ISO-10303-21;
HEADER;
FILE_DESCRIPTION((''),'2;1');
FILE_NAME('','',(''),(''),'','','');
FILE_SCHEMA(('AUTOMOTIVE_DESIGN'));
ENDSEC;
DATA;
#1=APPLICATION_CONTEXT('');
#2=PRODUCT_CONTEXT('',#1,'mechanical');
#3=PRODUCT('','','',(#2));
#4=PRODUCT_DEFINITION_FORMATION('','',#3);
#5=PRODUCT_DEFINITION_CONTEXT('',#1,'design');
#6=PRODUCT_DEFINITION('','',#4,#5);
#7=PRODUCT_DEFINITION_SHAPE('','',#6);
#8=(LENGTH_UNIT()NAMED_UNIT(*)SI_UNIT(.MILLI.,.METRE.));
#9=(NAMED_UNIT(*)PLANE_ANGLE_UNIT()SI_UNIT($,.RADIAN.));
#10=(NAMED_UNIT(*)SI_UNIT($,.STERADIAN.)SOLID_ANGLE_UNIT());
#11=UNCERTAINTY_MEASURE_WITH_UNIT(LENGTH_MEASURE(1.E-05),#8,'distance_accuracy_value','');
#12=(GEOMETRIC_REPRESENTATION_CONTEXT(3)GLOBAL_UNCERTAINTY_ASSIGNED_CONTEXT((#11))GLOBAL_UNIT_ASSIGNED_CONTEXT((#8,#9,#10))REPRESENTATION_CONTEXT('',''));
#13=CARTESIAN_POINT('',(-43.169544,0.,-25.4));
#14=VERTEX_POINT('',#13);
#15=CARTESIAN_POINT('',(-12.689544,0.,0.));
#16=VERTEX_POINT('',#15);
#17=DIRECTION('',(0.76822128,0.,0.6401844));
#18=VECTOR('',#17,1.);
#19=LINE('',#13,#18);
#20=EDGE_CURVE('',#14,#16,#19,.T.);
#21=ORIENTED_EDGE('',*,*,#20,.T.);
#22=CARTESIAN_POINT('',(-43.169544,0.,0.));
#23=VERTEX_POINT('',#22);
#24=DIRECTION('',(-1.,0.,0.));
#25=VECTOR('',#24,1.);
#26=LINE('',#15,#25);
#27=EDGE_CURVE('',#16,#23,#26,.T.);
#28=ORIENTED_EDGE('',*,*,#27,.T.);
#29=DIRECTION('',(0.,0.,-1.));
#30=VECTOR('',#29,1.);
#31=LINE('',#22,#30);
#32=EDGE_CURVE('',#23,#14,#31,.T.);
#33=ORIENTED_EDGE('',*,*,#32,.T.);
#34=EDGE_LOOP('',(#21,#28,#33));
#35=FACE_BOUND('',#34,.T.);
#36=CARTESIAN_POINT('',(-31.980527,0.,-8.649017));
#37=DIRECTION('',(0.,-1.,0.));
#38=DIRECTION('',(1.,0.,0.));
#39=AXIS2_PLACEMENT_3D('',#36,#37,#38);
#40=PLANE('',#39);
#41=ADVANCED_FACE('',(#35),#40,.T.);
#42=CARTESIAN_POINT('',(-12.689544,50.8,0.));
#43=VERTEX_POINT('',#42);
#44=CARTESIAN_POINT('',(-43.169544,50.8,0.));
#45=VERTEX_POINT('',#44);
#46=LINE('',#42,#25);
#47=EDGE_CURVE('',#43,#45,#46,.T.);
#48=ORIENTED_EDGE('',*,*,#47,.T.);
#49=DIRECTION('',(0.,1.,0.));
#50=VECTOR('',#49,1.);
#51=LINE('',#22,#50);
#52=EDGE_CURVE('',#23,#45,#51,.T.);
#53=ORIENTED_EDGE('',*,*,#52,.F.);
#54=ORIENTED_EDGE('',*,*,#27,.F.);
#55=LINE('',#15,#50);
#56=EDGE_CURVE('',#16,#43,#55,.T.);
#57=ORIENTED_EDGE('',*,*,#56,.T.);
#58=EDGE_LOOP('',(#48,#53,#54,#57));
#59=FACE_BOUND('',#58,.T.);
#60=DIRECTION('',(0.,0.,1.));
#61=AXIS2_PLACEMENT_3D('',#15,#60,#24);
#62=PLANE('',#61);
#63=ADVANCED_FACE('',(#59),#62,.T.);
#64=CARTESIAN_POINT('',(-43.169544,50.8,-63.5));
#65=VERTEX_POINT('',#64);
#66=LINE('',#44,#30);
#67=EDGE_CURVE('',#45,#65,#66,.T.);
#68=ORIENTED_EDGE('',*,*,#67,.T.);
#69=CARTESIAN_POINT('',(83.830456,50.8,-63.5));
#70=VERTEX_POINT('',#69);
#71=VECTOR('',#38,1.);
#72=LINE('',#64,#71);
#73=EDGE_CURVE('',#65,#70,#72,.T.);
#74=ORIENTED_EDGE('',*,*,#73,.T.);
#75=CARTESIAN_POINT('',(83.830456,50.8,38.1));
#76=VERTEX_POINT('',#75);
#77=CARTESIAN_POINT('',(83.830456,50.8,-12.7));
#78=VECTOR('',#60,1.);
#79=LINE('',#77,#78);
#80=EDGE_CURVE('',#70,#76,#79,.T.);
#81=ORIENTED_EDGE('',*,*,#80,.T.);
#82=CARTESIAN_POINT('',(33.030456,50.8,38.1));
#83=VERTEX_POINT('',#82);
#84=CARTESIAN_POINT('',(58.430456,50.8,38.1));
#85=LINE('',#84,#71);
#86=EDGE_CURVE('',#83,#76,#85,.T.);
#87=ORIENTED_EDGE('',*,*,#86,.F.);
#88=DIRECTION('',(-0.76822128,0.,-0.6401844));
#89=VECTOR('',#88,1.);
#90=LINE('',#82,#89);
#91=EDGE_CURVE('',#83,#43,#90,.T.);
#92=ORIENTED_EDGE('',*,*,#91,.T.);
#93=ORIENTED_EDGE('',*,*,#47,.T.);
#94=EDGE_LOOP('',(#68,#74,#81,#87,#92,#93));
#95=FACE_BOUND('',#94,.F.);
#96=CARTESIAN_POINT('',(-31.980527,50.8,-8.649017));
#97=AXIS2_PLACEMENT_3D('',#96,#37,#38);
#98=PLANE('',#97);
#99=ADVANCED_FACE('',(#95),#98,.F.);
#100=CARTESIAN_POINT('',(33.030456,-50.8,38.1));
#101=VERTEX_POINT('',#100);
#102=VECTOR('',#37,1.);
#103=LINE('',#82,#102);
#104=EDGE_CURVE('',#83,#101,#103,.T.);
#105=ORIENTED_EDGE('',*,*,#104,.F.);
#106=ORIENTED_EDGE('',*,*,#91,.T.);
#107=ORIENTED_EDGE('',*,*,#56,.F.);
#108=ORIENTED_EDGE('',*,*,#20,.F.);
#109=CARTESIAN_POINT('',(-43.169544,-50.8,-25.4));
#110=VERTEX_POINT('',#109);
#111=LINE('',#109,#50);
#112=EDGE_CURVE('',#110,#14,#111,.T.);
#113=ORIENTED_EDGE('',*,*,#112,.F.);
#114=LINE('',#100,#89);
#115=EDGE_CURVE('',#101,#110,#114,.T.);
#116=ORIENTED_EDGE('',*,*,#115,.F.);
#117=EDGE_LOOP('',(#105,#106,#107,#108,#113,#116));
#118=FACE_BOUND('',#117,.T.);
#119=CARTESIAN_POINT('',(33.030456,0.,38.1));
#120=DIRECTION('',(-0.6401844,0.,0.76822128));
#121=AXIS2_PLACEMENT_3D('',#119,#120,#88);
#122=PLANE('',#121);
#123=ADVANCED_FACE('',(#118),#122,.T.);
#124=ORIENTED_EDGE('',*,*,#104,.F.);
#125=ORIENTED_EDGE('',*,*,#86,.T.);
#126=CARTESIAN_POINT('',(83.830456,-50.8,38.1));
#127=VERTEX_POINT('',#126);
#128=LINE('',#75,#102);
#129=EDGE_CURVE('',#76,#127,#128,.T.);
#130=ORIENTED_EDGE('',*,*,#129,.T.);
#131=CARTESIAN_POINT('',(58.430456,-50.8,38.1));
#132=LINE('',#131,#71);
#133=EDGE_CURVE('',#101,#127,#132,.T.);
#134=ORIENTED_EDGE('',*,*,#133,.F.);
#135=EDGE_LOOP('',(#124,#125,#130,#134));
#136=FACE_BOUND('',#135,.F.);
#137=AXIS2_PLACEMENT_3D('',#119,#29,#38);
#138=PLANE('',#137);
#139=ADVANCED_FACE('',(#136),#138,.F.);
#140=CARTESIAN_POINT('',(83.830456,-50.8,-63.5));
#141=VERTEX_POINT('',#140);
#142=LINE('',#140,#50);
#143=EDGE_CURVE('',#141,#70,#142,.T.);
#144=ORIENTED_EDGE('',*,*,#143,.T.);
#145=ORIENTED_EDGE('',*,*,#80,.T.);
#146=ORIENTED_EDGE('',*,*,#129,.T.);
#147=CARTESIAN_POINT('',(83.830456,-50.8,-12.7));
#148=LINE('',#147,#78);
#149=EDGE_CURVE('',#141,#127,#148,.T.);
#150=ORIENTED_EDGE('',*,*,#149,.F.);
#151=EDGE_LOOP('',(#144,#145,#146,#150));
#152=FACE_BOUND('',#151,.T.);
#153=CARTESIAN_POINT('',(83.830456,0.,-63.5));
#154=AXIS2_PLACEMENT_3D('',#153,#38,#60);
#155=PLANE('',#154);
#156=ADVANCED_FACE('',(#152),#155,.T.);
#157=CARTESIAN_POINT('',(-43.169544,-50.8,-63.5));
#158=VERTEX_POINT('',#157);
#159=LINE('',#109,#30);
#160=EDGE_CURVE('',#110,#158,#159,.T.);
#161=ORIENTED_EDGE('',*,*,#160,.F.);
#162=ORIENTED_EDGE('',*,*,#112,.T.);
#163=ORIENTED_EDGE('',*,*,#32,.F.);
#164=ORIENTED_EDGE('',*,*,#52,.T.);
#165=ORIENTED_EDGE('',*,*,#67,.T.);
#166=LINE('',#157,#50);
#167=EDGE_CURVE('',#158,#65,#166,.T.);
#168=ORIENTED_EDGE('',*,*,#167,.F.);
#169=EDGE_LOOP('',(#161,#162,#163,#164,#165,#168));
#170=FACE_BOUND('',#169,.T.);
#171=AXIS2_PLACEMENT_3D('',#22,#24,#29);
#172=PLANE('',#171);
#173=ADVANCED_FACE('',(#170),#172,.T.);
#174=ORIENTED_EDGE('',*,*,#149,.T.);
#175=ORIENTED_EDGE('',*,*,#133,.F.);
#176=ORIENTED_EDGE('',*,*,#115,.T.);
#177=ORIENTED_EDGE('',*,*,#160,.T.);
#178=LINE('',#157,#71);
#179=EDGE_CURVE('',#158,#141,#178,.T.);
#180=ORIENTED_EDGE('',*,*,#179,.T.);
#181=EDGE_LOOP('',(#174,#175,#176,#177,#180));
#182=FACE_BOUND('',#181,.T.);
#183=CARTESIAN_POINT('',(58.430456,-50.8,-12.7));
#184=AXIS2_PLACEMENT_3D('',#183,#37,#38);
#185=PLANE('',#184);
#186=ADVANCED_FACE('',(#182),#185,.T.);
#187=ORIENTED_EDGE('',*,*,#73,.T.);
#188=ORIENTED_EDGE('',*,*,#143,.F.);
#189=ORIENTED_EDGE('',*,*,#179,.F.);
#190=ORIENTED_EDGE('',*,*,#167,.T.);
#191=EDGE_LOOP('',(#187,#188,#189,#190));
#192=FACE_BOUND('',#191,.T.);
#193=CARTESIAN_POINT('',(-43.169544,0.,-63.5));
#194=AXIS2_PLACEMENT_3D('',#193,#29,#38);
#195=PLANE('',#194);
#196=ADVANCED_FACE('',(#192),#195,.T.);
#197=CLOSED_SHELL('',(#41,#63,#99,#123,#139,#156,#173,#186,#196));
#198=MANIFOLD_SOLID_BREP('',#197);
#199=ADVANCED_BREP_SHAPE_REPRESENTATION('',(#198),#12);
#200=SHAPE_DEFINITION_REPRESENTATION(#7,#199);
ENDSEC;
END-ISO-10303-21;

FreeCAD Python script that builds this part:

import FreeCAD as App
import Part
import Sketcher

V = App.Vector
Q = App.Units.Quantity

doc = App.newDocument("Part")
body = doc.addObject("PartDesign::Body", "Body")

# Sketch on XZ plane
sketch1 = doc.addObject("Sketcher::SketchObject", "Sketch")
body.addObject(sketch1)
sketch1.AttachmentSupport = (doc.XZ_Plane, [""])
sketch1.MapMode = "FlatFace"
sketch1.addGeometry(Part.LineSegment(V(84, -64, 0), V(84, 38, 0)), False)
sketch1.addGeometry(Part.LineSegment(V(84, 38, 0), V(33, 38, 0)), False)
sketch1.addGeometry(Part.LineSegment(V(33, 38, 0), V(-43, -25, 0)), False)
sketch1.addGeometry(Part.LineSegment(V(-43, -25, 0), V(-43, -64, 0)), False)
sketch1.addGeometry(Part.LineSegment(V(-43, -64, 0), V(84, -64, 0)), False)
sketch1.addConstraint(Sketcher.Constraint("Coincident", 0, 2, 1, 1))
sketch1.addConstraint(Sketcher.Constraint("Coincident", 1, 2, 2, 1))
sketch1.addConstraint(Sketcher.Constraint("Coincident", 2, 2, 3, 1))
sketch1.addConstraint(Sketcher.Constraint("Coincident", 3, 2, 4, 1))
sketch1.addConstraint(Sketcher.Constraint("Coincident", 4, 2, 0, 1))
sketch1.addConstraint(Sketcher.Constraint("Vertical", 0))
sketch1.addConstraint(Sketcher.Constraint("Horizontal", 1))
sketch1.addConstraint(Sketcher.Constraint("Vertical", 3))
sketch1.addConstraint(Sketcher.Constraint("Horizontal", 4))
sketch1.addConstraint(Sketcher.Constraint("DistanceX", 1, 2, 1, 1, Q("2 in")))
sketch1.addConstraint(Sketcher.Constraint("DistanceX", 4, 1, 4, 2, Q("5 in")))
sketch1.addConstraint(Sketcher.Constraint("DistanceY", 0, 1, 0, 2, Q("4 in")))
sketch1.addConstraint(Sketcher.Constraint("DistanceY", 3, 2, 3, 1, Q("1.5 in")))
sketch1.addConstraint(Sketcher.Constraint("DistanceY", 2, 2, -1, 1, Q("1 in")))
sketch1.addConstraint(Sketcher.Constraint("DistanceX", -1, 1, 0, 2, Q("83.830456 mm")))
pad1 = doc.addObject("PartDesign::Pad", "Pad")
body.addObject(pad1)
pad1.Profile = sketch1
pad1.Length = Q("4 in")
pad1.Midplane = True

# Sketch on XZ plane
sketch2 = doc.addObject("Sketcher::SketchObject", "Sketch001")
body.addObject(sketch2)
sketch2.AttachmentSupport = (doc.XZ_Plane, [""])
sketch2.MapMode = "FlatFace"
sketch2.addGeometry(Part.LineSegment(V(-43, -25, 0), V(-13, 0, 0)), False)
sketch2.addGeometry(Part.LineSegment(V(-13, 0, 0), V(-43, 0, 0)), False)
sketch2.addGeometry(Part.LineSegment(V(-43, 0, 0), V(-43, -25, 0)), False)
sketch2.addConstraint(Sketcher.Constraint("Coincident", 0, 2, 1, 1))
sketch2.addConstraint(Sketcher.Constraint("Coincident", 1, 2, 2, 1))
sketch2.addConstraint(Sketcher.Constraint("Coincident", 2, 2, 0, 1))
sketch2.addConstraint(Sketcher.Constraint("Horizontal", 1))
sketch2.addConstraint(Sketcher.Constraint("Vertical", 2))
sketch2.addConstraint(Sketcher.Constraint("PointOnObject", 0, 2, -1))
sketch2.addConstraint(Sketcher.Constraint("DistanceY", 2, 2, 2, 1, Q("1 in")))
sketch2.addConstraint(Sketcher.Constraint("DistanceX", 1, 2, 1, 1, Q("1.2 in")))
sketch2.addConstraint(Sketcher.Constraint("DistanceX", 0, 2, -1, 1, Q("12.689544 mm")))
pad2 = doc.addObject("PartDesign::Pad", "Pad001")
body.addObject(pad2)
pad2.Profile = sketch2
pad2.Length = Q("2 in")
pad2.Reversed = True

doc.recompute()
